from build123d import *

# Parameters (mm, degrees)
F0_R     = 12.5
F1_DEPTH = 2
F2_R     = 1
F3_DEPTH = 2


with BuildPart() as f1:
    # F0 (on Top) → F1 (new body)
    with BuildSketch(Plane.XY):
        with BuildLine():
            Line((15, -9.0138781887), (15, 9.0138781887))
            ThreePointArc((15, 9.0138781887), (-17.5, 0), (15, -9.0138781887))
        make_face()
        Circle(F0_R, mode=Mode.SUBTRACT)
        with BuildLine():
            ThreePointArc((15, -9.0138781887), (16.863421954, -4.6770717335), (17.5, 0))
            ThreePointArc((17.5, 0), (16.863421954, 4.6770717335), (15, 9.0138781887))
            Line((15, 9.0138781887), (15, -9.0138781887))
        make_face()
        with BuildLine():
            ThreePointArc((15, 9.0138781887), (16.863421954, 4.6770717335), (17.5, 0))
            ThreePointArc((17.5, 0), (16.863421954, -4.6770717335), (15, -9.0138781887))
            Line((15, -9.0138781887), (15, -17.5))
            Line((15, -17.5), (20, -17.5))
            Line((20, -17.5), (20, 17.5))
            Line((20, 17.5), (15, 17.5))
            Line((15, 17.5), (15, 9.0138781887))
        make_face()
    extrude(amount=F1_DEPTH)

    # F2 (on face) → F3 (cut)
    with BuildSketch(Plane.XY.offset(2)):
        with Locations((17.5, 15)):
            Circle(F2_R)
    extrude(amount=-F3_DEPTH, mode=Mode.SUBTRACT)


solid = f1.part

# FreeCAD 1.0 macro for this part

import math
import FreeCAD as App
import Part
import Sketcher
Q = App.Units.Quantity

doc = App.newDocument("Part")
body = doc.addObject("PartDesign::Body", "Body")

# Sketch on XY plane
sketch1 = body.newObject("Sketcher::SketchObject", "Sketch")
sketch1.AttachmentSupport = (doc.getObject("XY_Plane"), [""])
sketch1.MapMode = "FlatFace"
sketch1.addGeometry([
    Part.ArcOfCircle(Part.Circle(App.Vector(0, 0, 0), App.Vector(0, 0, 1), 18), math.radians(31), math.radians(329)),  # 0
    Part.LineSegment(App.Vector(15, -9, 0), App.Vector(15, -18, 0)),  # 1
    Part.LineSegment(App.Vector(15, -18, 0), App.Vector(20, -18, 0)),  # 2
    Part.LineSegment(App.Vector(20, -18, 0), App.Vector(20, 18, 0)),  # 3
    Part.LineSegment(App.Vector(20, 18, 0), App.Vector(15, 18, 0)),  # 4
    Part.LineSegment(App.Vector(15, 18, 0), App.Vector(15, 9, 0)),  # 5
    Part.Circle(App.Vector(0, 0, 0), App.Vector(0, 0, 1), 12),  # 6
], False)
sketch1.addConstraint([
    Sketcher.Constraint("Coincident", 0, 2, 1, 1),
    Sketcher.Constraint("Coincident", 1, 2, 2, 1),
    Sketcher.Constraint("Coincident", 2, 2, 3, 1),
    Sketcher.Constraint("Coincident", 3, 2, 4, 1),
    Sketcher.Constraint("Coincident", 4, 2, 5, 1),
    Sketcher.Constraint("Coincident", 5, 2, 0, 1),
    Sketcher.Constraint("Vertical", 1),
    Sketcher.Constraint("Horizontal", 2),
    Sketcher.Constraint("Vertical", 3),
    Sketcher.Constraint("Horizontal", 4),
    Sketcher.Constraint("Vertical", 5),
    Sketcher.Constraint("Coincident", 0, 3, -1, 1),
    Sketcher.Constraint("Coincident", 6, 3, -1, 1),
    Sketcher.Constraint("Symmetric", 1, 2, 4, 2, -1),
    Sketcher.Constraint("Diameter", 6, Q("25 mm")),
    Sketcher.Constraint("Radius", 0, Q("17.5 mm")),
    Sketcher.Constraint("DistanceX", 2, 1, 2, 2, Q("5 mm")),
    Sketcher.Constraint("DistanceY", 3, 1, 3, 2, Q("35 mm")),
    Sketcher.Constraint("DistanceX", -1, 1, 0, 2, Q("15 mm")),
])
pad1 = body.newObject("PartDesign::Pad", "Pad")
pad1.Profile = sketch1
pad1.Length = 2

# Sketch on XY plane
sketch2 = body.newObject("Sketcher::SketchObject", "Sketch001")
sketch2.AttachmentSupport = (doc.getObject("XY_Plane"), [""])
sketch2.MapMode = "FlatFace"
sketch2.AttachmentOffset = App.Placement(App.Vector(0, 0, 2), App.Rotation())
sketch2.addGeometry(Part.Circle(App.Vector(17.5, 15, 0), App.Vector(0, 0, 1), 1), False)
sketch2.addConstraint([
    Sketcher.Constraint("Diameter", 0, Q("2 mm")),
    Sketcher.Constraint("DistanceY", -1, 1, 0, 3, Q("15 mm")),
    Sketcher.Constraint("DistanceX", -1, 1, 0, 3, Q("17.5 mm")),
])
pocket1 = body.newObject("PartDesign::Pocket", "Pocket")
pocket1.Profile = sketch2
pocket1.Length = 2

doc.recompute()
